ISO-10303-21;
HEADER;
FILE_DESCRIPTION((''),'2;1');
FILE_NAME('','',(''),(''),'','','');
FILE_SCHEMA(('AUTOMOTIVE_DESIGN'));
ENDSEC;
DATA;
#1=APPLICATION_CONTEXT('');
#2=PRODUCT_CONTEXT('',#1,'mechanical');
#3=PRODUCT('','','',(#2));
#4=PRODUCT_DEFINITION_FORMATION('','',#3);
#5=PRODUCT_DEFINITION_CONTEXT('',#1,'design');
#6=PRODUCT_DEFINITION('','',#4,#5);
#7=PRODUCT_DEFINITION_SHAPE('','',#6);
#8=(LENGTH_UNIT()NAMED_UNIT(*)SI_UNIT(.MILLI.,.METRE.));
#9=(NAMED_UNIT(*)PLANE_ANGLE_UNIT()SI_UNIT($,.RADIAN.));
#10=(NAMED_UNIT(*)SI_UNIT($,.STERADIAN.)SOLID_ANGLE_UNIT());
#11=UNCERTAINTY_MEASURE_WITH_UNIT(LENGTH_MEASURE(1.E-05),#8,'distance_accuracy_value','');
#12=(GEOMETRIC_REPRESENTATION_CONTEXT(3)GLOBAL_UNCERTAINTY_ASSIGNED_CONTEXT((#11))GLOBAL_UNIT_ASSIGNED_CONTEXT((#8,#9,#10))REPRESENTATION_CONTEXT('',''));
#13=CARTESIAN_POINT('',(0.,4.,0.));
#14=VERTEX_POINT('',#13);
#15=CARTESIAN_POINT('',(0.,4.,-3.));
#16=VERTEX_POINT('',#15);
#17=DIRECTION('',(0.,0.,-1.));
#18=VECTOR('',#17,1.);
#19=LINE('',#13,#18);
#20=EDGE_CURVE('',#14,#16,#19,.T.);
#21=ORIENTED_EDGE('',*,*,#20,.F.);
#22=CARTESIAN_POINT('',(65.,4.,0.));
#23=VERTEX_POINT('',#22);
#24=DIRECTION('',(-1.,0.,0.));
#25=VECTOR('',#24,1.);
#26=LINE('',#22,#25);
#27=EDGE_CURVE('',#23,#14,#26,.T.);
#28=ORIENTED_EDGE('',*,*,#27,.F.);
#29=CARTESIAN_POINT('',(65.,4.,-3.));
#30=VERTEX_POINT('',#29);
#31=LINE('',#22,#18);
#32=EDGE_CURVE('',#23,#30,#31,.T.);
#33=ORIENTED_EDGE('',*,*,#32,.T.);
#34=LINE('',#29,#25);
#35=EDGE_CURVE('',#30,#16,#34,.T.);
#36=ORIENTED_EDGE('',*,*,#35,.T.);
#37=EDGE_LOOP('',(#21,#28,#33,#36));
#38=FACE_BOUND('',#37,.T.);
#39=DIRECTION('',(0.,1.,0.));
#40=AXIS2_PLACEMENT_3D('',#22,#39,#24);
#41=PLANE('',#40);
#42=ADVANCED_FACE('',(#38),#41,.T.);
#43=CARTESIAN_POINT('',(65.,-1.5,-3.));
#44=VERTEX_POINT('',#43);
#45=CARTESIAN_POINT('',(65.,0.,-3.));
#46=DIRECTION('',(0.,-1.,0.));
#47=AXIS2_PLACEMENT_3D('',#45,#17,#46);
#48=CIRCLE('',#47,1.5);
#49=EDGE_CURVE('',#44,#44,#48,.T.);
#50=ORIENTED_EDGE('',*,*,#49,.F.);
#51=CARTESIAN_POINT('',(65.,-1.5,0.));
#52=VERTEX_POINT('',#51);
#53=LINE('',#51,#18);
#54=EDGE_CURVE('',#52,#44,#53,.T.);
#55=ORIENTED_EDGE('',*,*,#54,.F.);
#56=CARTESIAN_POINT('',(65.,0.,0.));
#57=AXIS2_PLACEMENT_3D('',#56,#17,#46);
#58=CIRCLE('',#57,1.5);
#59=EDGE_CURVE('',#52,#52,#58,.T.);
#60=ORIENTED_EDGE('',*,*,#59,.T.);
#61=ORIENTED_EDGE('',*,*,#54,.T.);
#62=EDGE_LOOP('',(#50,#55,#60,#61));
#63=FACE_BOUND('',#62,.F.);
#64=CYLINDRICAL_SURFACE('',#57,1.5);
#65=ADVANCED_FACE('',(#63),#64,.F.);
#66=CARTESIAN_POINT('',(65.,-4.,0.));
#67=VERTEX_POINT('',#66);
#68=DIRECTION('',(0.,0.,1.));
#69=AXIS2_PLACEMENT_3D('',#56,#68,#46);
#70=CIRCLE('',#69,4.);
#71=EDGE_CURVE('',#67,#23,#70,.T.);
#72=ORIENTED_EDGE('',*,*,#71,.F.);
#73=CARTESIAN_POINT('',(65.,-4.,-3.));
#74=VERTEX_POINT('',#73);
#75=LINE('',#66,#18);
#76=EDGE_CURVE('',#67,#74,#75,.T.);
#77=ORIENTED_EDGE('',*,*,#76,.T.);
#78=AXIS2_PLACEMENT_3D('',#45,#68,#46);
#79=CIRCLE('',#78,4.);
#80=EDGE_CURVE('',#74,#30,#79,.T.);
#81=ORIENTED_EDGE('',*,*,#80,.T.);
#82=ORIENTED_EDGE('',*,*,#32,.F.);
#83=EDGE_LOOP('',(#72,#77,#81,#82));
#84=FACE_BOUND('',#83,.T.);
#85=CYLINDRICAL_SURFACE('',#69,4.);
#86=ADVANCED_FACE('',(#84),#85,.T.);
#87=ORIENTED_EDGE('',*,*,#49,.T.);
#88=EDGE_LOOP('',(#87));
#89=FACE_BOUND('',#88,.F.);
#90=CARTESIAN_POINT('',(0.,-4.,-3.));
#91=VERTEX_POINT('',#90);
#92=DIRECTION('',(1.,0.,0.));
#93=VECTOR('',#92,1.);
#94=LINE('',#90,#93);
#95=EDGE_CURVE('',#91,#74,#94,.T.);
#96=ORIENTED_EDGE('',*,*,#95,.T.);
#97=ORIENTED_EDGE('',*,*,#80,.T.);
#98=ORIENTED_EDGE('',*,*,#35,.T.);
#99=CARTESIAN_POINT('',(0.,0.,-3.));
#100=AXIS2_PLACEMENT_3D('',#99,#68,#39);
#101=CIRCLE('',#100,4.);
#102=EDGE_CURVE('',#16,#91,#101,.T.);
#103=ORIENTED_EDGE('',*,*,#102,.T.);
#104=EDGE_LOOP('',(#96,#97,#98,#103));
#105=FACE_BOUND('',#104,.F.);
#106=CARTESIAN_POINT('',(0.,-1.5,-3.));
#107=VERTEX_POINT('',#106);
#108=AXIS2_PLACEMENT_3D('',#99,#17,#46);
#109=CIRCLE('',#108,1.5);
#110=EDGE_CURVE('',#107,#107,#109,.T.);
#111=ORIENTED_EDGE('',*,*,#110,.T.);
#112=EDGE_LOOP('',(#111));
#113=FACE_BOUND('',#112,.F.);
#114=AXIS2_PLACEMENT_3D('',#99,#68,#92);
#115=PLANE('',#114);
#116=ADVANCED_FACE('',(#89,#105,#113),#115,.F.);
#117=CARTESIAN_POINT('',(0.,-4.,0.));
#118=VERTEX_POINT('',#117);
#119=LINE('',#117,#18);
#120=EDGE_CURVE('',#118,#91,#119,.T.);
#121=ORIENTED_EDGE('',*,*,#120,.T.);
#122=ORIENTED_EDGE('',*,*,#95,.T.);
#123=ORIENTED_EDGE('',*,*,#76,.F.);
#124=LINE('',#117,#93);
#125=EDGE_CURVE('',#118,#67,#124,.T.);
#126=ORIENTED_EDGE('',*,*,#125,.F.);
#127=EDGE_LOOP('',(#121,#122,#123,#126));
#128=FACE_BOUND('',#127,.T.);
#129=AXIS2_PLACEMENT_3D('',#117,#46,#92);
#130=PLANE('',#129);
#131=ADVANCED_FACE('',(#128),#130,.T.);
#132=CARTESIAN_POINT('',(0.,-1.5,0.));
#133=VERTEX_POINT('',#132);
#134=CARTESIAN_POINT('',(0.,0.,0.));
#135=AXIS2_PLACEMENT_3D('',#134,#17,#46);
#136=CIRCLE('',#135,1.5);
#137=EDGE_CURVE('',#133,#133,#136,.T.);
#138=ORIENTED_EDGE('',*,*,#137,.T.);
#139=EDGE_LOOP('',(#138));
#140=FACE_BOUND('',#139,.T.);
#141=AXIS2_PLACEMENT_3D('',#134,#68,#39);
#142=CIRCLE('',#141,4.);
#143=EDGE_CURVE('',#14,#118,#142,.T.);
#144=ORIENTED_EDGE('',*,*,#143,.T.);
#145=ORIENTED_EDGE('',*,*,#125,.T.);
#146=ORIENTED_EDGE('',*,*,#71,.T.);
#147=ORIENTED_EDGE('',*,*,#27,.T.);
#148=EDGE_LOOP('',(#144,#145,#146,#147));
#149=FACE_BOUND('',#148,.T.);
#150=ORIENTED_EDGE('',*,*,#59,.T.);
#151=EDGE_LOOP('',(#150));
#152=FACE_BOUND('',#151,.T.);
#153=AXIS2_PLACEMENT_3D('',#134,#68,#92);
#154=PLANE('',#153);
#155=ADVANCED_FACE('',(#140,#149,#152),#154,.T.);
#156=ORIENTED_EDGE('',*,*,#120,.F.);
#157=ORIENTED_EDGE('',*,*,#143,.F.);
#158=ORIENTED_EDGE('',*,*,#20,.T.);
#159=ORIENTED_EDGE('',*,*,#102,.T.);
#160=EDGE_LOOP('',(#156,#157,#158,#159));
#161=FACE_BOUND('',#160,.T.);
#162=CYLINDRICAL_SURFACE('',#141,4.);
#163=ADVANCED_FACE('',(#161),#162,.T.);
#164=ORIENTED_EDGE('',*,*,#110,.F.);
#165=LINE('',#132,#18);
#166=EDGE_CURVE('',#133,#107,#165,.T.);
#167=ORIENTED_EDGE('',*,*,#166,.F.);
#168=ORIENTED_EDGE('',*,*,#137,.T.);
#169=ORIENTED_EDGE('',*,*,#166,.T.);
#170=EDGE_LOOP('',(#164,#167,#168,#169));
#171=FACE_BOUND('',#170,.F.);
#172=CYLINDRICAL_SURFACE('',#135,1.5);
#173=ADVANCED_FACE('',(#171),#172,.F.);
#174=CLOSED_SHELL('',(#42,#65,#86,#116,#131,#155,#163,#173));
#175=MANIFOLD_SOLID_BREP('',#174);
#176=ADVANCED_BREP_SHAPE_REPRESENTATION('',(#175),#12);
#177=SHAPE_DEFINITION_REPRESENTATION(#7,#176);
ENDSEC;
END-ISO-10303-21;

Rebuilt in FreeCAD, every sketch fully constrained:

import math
import FreeCAD as App
import Part
import Sketcher
from FreeCAD import Vector

doc = App.newDocument("Part")
body = doc.addObject("PartDesign::Body", "Body")

# Sketch on XY plane
sketch1 = doc.addObject("Sketcher::SketchObject", "Sketch")
body.addObject(sketch1)
sketch1.AttachmentSupport = (doc.XY_Plane, [""])
sketch1.MapMode = "FlatFace"
sketch1.addGeometry([
    Part.ArcOfCircle(Part.Circle(Vector(0, 0, 0), Vector(0, 0, 1), 4), math.radians(90), math.radians(270)),
    Part.LineSegment(Vector(0, -4, 0), Vector(65, -4, 0)),
    Part.ArcOfCircle(Part.Circle(Vector(65, 0, 0), Vector(0, 0, 1), 4), math.radians(-90), math.radians(90)),
    Part.LineSegment(Vector(65, 4, 0), Vector(0, 4, 0)),
], False)
sketch1.addConstraint([
    Sketcher.Constraint("Tangent", 0, 2, 1, 1),
    Sketcher.Constraint("Tangent", 1, 2, 2, 1),
    Sketcher.Constraint("Tangent", 2, 2, 3, 1),
    Sketcher.Constraint("Tangent", 3, 2, 0, 1),
    Sketcher.Constraint("Horizontal", 1),
    Sketcher.Constraint("Horizontal", 3),
    Sketcher.Constraint("Coincident", 0, 3, -1, 1),
    Sketcher.Constraint("Radius", 0, 4.0),
    Sketcher.Constraint("DistanceX", 1, 1, 1, 2, 65.0),
])
pad1 = doc.addObject("PartDesign::Pad", "Pad")
body.addObject(pad1)
pad1.Profile = sketch1
pad1.Length = 3
pad1.Reversed = True

# Sketch on XY plane
sketch2 = doc.addObject("Sketcher::SketchObject", "Sketch001")
body.addObject(sketch2)
sketch2.AttachmentSupport = (doc.XY_Plane, [""])
sketch2.MapMode = "FlatFace"
sketch2.addGeometry([
    Part.Circle(Vector(0, 0, 0), Vector(0, 0, 1), 1.5),
    Part.Circle(Vector(65, 0, 0), Vector(0, 0, 1), 1.5),
], False)
sketch2.addConstraint([
    Sketcher.Constraint("Coincident", 0, 3, -1, 1),
    Sketcher.Constraint("Equal", 0, 1),
    Sketcher.Constraint("PointOnObject", 1, 3, -1),
    Sketcher.Constraint("Diameter", 0, 3.0),
    Sketcher.Constraint("DistanceX", -1, 1, 1, 3, 65.0),
])
doc.recompute()
hole = doc.addObject("PartDesign::Hole", "Hole")
body.addObject(hole)
hole.Profile = sketch2
hole.ThreadType = "None"
hole.Diameter = 3
hole.DepthType = "Dimension"
hole.Depth = 8
hole.DrillPoint = "Angled"
hole.DrillPointAngle = 118

doc.recompute()
